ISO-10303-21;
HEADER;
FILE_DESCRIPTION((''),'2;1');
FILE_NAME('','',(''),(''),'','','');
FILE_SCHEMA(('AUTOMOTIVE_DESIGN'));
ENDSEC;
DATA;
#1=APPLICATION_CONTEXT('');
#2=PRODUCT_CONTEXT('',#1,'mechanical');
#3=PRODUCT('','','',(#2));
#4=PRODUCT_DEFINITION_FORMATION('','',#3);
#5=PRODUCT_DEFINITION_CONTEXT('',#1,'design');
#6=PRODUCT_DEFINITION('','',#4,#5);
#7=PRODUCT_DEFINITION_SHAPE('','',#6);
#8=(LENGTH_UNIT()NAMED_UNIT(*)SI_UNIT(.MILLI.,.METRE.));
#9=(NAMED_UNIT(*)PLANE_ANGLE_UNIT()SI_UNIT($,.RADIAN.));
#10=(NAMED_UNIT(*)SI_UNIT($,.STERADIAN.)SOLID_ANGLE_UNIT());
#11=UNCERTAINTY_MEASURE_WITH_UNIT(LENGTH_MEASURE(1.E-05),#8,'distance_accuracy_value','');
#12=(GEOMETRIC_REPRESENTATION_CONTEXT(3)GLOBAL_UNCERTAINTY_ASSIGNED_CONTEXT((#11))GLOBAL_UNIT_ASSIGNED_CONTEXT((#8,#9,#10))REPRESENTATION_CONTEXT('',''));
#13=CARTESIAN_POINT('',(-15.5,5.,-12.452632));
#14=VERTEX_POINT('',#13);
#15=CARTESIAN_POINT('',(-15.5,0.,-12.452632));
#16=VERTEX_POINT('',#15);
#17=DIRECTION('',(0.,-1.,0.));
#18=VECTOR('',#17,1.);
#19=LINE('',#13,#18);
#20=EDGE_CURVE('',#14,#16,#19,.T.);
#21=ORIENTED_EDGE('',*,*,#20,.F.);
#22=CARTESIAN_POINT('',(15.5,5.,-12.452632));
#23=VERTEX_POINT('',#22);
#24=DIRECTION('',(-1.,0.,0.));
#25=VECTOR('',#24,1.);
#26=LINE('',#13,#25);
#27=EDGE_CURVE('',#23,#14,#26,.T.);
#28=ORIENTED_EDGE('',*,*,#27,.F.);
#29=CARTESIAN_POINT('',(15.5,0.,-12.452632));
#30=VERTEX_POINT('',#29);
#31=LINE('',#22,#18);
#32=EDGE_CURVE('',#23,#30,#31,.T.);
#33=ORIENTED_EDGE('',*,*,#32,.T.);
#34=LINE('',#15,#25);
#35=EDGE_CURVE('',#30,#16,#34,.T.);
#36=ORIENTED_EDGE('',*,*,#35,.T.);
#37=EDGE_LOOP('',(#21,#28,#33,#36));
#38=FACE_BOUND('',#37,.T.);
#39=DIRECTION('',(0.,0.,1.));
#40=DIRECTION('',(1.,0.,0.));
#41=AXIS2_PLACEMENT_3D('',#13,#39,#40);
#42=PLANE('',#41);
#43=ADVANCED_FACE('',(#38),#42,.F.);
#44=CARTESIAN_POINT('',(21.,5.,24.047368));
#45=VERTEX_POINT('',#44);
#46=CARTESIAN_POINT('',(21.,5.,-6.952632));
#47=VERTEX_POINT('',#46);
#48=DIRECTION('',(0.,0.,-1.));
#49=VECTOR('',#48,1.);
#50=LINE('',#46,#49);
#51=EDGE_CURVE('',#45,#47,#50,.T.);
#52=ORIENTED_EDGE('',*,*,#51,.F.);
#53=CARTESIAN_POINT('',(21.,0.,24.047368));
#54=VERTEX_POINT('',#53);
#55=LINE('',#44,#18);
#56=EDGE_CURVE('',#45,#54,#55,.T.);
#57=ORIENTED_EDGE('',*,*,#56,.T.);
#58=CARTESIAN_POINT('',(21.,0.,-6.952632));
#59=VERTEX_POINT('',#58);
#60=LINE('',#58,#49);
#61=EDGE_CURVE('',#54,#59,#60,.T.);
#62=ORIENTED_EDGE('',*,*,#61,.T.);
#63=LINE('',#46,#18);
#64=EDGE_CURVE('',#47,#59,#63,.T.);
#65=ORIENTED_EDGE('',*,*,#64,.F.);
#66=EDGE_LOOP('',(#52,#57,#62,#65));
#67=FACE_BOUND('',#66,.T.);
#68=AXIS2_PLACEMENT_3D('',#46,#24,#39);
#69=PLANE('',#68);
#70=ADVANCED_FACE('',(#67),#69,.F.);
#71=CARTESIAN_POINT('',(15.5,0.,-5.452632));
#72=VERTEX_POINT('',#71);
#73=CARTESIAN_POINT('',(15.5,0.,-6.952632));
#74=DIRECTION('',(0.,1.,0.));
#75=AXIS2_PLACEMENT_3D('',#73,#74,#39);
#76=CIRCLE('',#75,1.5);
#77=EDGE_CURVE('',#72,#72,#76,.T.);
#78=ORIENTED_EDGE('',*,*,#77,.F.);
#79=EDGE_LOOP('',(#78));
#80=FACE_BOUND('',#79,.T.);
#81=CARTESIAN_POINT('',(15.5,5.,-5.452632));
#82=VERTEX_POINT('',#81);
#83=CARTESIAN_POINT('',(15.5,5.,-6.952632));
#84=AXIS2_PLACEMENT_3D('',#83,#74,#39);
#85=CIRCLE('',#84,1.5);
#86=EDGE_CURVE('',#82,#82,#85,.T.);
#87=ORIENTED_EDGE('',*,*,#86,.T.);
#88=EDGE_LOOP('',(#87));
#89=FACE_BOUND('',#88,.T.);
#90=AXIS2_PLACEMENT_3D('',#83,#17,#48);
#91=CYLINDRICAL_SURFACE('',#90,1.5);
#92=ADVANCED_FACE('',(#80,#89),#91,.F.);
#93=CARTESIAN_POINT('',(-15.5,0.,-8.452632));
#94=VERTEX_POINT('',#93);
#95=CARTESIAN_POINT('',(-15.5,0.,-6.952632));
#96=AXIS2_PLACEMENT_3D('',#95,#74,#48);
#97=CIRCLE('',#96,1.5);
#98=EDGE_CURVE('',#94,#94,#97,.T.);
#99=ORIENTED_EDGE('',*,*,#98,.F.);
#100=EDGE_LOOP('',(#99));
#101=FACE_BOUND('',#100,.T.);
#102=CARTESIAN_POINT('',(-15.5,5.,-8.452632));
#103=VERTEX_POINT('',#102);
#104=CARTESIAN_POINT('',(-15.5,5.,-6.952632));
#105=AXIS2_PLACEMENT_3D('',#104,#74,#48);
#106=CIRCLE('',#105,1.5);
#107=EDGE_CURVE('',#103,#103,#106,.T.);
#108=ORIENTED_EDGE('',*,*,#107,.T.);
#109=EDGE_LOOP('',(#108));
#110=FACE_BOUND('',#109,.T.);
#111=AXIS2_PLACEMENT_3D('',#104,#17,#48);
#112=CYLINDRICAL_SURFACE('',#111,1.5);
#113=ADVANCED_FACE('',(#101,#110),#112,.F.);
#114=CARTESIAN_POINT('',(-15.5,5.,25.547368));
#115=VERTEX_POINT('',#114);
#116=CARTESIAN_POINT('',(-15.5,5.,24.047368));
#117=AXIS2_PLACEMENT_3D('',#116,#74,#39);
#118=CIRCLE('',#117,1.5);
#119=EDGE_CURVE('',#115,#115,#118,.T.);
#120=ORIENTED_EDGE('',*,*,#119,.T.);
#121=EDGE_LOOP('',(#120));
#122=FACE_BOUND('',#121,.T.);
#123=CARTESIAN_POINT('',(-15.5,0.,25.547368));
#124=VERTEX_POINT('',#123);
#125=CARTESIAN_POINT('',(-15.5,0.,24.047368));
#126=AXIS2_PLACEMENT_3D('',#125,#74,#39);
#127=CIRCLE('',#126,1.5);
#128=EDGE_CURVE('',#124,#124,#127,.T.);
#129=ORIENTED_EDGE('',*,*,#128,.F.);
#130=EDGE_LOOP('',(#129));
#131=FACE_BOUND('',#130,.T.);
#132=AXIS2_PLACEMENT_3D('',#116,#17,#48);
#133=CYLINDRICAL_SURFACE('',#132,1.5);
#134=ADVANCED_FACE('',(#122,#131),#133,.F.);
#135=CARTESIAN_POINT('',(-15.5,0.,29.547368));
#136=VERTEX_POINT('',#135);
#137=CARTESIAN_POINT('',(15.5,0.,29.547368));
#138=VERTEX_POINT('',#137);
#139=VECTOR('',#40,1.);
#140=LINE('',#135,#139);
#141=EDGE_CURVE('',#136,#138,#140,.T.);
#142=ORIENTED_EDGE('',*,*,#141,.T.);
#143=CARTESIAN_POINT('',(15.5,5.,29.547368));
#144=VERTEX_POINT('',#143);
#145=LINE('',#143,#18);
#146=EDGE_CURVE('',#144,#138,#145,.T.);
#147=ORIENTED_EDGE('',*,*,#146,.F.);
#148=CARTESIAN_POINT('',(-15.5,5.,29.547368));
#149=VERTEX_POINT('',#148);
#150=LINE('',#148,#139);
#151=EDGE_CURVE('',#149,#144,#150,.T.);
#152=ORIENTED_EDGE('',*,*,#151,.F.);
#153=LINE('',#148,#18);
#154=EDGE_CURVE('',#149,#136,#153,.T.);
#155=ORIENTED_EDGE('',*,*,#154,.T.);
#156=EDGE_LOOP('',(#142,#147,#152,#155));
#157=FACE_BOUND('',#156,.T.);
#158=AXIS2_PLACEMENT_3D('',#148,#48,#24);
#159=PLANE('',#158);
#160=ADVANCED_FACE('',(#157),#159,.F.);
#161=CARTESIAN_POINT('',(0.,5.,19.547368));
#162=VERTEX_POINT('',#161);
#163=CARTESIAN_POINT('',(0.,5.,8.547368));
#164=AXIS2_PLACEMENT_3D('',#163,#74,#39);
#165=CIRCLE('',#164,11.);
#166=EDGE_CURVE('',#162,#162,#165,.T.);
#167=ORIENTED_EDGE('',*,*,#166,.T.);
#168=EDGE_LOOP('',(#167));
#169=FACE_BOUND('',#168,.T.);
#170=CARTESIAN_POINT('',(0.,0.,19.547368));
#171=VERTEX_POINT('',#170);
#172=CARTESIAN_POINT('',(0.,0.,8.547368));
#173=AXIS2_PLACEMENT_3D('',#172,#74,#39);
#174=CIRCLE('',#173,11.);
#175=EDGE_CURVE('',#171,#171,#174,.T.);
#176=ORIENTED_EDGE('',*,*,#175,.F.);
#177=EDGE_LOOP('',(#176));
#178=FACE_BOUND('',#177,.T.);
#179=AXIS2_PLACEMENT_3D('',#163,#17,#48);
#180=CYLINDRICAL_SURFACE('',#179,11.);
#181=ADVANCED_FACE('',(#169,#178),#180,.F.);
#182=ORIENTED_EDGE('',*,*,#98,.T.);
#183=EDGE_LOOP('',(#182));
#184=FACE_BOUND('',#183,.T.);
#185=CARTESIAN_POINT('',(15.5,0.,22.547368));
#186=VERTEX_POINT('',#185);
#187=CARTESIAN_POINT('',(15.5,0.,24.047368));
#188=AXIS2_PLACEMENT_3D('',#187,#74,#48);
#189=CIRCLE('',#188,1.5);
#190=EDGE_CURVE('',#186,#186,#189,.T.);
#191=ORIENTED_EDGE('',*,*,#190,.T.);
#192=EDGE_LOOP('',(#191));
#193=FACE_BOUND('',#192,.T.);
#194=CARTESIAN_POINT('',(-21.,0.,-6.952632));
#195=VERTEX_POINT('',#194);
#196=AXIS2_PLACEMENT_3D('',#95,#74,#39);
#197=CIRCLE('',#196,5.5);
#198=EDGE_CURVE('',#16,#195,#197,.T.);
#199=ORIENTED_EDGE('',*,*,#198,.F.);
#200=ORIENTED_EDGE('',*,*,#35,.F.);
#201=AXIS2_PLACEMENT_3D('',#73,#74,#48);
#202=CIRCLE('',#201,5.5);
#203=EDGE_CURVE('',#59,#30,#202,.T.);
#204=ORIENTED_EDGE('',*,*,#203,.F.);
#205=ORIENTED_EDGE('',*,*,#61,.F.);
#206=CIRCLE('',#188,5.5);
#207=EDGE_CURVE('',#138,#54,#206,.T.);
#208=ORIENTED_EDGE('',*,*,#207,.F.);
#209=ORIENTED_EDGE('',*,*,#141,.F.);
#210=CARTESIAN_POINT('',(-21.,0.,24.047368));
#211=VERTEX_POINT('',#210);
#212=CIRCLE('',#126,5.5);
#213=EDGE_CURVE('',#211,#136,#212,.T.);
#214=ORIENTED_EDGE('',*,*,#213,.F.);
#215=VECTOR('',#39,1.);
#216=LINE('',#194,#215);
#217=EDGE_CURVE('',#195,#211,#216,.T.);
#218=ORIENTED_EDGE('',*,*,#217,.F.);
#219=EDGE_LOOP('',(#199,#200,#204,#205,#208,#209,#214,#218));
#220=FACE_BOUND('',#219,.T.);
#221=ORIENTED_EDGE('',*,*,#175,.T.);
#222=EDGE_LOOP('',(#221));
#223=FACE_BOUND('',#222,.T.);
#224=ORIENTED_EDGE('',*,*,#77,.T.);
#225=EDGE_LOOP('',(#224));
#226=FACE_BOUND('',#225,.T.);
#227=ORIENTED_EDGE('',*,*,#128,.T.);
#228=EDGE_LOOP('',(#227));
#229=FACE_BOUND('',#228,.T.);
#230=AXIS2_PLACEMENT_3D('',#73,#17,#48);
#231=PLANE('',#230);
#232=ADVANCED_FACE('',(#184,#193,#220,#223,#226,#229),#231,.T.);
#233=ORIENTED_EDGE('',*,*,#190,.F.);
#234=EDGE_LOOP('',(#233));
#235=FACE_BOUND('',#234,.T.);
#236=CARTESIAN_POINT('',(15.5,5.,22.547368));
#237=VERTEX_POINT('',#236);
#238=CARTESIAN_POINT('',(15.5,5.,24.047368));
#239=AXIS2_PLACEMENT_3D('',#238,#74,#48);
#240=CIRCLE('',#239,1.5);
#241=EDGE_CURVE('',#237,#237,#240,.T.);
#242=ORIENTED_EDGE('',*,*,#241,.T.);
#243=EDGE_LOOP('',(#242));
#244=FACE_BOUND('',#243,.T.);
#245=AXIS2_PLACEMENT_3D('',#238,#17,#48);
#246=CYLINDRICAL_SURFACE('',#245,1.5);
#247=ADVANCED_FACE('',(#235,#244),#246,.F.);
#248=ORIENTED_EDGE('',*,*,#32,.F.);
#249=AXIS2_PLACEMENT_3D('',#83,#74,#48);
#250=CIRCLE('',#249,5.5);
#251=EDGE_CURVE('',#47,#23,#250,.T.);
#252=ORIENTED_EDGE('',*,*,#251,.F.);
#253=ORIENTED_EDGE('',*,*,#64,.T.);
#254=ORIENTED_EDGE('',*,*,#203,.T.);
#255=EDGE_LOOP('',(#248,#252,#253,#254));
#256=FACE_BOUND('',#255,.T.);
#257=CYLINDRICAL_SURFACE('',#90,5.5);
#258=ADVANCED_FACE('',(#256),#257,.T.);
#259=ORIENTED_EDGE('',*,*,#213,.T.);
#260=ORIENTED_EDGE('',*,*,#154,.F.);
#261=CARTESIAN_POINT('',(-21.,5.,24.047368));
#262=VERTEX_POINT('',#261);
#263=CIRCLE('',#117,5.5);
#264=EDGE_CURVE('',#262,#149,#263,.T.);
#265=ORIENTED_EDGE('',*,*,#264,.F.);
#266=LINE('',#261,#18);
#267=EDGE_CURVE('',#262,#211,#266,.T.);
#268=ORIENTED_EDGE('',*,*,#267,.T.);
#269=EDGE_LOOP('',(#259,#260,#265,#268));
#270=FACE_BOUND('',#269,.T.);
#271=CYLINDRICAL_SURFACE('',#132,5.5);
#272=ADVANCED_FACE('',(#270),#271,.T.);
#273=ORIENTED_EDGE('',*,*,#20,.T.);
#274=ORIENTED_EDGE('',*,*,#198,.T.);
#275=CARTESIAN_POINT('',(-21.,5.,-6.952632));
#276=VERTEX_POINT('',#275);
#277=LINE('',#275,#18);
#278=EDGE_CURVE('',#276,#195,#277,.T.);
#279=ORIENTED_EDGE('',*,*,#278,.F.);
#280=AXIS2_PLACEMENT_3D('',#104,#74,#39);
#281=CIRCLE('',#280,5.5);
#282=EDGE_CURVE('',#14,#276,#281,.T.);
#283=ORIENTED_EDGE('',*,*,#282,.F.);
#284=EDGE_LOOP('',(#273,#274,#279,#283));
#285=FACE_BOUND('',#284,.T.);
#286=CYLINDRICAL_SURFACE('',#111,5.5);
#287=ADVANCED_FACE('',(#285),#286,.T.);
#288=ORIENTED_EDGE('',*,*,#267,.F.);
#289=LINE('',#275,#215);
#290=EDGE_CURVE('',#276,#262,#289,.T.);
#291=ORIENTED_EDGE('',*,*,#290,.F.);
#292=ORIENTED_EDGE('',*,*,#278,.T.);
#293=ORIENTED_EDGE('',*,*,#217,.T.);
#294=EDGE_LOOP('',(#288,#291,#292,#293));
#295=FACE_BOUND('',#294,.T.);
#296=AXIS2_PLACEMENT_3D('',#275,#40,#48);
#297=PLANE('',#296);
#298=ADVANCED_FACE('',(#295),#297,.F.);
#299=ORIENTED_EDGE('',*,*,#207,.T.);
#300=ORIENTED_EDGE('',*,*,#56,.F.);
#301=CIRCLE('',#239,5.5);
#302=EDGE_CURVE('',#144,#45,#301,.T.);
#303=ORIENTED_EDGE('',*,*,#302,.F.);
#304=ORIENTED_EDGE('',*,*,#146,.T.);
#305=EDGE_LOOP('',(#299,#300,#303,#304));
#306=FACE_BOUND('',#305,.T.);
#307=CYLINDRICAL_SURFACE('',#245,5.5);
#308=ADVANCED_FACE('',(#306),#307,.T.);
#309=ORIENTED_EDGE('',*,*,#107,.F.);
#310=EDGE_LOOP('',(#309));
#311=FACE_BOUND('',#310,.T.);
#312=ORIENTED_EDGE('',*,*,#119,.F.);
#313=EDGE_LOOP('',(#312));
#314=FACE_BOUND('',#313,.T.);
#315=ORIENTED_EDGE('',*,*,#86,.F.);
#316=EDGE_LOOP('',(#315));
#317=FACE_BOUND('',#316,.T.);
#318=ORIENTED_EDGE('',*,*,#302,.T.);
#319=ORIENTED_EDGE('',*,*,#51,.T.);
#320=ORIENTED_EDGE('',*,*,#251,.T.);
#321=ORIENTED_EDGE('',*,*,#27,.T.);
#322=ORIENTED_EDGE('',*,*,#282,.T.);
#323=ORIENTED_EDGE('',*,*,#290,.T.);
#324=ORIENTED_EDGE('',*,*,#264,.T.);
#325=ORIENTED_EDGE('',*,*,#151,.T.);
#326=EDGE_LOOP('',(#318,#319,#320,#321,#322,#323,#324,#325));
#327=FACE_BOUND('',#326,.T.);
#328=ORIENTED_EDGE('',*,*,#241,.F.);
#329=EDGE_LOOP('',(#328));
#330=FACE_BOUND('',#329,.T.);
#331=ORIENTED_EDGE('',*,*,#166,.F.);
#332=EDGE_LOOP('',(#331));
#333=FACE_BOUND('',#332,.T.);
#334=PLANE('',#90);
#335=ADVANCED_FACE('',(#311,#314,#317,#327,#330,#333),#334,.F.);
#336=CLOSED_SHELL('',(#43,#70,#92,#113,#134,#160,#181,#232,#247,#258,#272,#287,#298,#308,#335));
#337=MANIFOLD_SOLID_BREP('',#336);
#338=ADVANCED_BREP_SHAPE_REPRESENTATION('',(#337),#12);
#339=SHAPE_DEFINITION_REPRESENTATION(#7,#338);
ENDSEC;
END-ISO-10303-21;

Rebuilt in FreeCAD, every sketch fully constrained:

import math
import FreeCAD as App
import Part
import Sketcher

V = App.Vector
Q = App.Units.Quantity

doc = App.newDocument("Part")
body = doc.addObject("PartDesign::Body", "Body")

sketch1 = body.newObject("Sketcher::SketchObject", "Sketch")
sketch1.AttachmentSupport = (doc.getObject("XZ_Plane"), [""])
sketch1.MapMode = "FlatFace"
sketch1.addGeometry([
    Part.LineSegment(V(15.5, -12.5, 0), V(-15.5, -12.5, 0)),
    Part.ArcOfCircle(Part.Circle(V(-15.5, -7, 0), V(0, 0, 1), 5.5), math.radians(180), math.radians(270)),
    Part.LineSegment(V(-21, -7, 0), V(-21, 24, 0)),
    Part.ArcOfCircle(Part.Circle(V(-15.5, 24, 0), V(0, 0, 1), 5.5), math.radians(90), math.radians(180)),
    Part.LineSegment(V(-15.5, 29.5, 0), V(15.5, 29.5, 0)),
    Part.ArcOfCircle(Part.Circle(V(15.5, 24, 0), V(0, 0, 1), 5.5), math.radians(0), math.radians(90)),
    Part.LineSegment(V(21, 24, 0), V(21, -7, 0)),
    Part.ArcOfCircle(Part.Circle(V(15.5, -7, 0), V(0, 0, 1), 5.5), math.radians(-90), math.radians(0)),
    Part.Circle(V(15.5, 24, 0), V(0, 0, 1), 1.5),
    Part.Circle(V(-15.5, 24, 0), V(0, 0, 1), 1.5),
    Part.Circle(V(15.5, -7, 0), V(0, 0, 1), 1.5),
    Part.Circle(V(0, 8.5, 0), V(0, 0, 1), 11),
    Part.Circle(V(-15.5, -7, 0), V(0, 0, 1), 1.5),
], False)
sketch1.addConstraint([
    Sketcher.Constraint("Tangent", 0, 2, 1, 2),
    Sketcher.Constraint("Tangent", 1, 1, 2, 1),
    Sketcher.Constraint("Tangent", 2, 2, 3, 2),
    Sketcher.Constraint("Tangent", 3, 1, 4, 1),
    Sketcher.Constraint("Tangent", 4, 2, 5, 2),
    Sketcher.Constraint("Tangent", 5, 1, 6, 1),
    Sketcher.Constraint("Tangent", 6, 2, 7, 2),
    Sketcher.Constraint("Tangent", 7, 1, 0, 1),
    Sketcher.Constraint("Horizontal", 0),
    Sketcher.Constraint("Vertical", 2),
    Sketcher.Constraint("Horizontal", 4),
    Sketcher.Constraint("Vertical", 6),
    Sketcher.Constraint("Coincident", 8, 3, 5, 3),
    Sketcher.Constraint("Coincident", 9, 3, 3, 3),
    Sketcher.Constraint("Coincident", 10, 3, 7, 3),
    Sketcher.Constraint("Coincident", 12, 3, 1, 3),
    Sketcher.Constraint("Equal", 1, 3),
    Sketcher.Constraint("Equal", 3, 5),
    Sketcher.Constraint("Equal", 5, 7),
    Sketcher.Constraint("Equal", 8, 9),
    Sketcher.Constraint("Equal", 9, 10),
    Sketcher.Constraint("Equal", 10, 12),
    Sketcher.Constraint("PointOnObject", 11, 3, -2),
    Sketcher.Constraint("Equal", 4, 2),
    Sketcher.Constraint("Diameter", 8, Q("3 mm")),
    Sketcher.Constraint("Diameter", 11, Q("22 mm")),
    Sketcher.Constraint("Radius", 1, Q("5.5 mm")),
    Sketcher.Constraint("DistanceX", 0, 2, 0, 1, Q("31 mm")),
    Sketcher.Constraint("DistanceX", 1, 1, -1, 1, Q("21 mm")),
    Sketcher.Constraint("DistanceY", 0, 2, 11, 3, Q("21 mm")),
    Sketcher.Constraint("DistanceY", 1, 3, -1, 1, Q("6.952632 mm")),
])
pad1 = body.newObject("PartDesign::Pad", "Pad")
pad1.Profile = sketch1
pad1.Length = 5
pad1.Reversed = True

doc.recompute()
